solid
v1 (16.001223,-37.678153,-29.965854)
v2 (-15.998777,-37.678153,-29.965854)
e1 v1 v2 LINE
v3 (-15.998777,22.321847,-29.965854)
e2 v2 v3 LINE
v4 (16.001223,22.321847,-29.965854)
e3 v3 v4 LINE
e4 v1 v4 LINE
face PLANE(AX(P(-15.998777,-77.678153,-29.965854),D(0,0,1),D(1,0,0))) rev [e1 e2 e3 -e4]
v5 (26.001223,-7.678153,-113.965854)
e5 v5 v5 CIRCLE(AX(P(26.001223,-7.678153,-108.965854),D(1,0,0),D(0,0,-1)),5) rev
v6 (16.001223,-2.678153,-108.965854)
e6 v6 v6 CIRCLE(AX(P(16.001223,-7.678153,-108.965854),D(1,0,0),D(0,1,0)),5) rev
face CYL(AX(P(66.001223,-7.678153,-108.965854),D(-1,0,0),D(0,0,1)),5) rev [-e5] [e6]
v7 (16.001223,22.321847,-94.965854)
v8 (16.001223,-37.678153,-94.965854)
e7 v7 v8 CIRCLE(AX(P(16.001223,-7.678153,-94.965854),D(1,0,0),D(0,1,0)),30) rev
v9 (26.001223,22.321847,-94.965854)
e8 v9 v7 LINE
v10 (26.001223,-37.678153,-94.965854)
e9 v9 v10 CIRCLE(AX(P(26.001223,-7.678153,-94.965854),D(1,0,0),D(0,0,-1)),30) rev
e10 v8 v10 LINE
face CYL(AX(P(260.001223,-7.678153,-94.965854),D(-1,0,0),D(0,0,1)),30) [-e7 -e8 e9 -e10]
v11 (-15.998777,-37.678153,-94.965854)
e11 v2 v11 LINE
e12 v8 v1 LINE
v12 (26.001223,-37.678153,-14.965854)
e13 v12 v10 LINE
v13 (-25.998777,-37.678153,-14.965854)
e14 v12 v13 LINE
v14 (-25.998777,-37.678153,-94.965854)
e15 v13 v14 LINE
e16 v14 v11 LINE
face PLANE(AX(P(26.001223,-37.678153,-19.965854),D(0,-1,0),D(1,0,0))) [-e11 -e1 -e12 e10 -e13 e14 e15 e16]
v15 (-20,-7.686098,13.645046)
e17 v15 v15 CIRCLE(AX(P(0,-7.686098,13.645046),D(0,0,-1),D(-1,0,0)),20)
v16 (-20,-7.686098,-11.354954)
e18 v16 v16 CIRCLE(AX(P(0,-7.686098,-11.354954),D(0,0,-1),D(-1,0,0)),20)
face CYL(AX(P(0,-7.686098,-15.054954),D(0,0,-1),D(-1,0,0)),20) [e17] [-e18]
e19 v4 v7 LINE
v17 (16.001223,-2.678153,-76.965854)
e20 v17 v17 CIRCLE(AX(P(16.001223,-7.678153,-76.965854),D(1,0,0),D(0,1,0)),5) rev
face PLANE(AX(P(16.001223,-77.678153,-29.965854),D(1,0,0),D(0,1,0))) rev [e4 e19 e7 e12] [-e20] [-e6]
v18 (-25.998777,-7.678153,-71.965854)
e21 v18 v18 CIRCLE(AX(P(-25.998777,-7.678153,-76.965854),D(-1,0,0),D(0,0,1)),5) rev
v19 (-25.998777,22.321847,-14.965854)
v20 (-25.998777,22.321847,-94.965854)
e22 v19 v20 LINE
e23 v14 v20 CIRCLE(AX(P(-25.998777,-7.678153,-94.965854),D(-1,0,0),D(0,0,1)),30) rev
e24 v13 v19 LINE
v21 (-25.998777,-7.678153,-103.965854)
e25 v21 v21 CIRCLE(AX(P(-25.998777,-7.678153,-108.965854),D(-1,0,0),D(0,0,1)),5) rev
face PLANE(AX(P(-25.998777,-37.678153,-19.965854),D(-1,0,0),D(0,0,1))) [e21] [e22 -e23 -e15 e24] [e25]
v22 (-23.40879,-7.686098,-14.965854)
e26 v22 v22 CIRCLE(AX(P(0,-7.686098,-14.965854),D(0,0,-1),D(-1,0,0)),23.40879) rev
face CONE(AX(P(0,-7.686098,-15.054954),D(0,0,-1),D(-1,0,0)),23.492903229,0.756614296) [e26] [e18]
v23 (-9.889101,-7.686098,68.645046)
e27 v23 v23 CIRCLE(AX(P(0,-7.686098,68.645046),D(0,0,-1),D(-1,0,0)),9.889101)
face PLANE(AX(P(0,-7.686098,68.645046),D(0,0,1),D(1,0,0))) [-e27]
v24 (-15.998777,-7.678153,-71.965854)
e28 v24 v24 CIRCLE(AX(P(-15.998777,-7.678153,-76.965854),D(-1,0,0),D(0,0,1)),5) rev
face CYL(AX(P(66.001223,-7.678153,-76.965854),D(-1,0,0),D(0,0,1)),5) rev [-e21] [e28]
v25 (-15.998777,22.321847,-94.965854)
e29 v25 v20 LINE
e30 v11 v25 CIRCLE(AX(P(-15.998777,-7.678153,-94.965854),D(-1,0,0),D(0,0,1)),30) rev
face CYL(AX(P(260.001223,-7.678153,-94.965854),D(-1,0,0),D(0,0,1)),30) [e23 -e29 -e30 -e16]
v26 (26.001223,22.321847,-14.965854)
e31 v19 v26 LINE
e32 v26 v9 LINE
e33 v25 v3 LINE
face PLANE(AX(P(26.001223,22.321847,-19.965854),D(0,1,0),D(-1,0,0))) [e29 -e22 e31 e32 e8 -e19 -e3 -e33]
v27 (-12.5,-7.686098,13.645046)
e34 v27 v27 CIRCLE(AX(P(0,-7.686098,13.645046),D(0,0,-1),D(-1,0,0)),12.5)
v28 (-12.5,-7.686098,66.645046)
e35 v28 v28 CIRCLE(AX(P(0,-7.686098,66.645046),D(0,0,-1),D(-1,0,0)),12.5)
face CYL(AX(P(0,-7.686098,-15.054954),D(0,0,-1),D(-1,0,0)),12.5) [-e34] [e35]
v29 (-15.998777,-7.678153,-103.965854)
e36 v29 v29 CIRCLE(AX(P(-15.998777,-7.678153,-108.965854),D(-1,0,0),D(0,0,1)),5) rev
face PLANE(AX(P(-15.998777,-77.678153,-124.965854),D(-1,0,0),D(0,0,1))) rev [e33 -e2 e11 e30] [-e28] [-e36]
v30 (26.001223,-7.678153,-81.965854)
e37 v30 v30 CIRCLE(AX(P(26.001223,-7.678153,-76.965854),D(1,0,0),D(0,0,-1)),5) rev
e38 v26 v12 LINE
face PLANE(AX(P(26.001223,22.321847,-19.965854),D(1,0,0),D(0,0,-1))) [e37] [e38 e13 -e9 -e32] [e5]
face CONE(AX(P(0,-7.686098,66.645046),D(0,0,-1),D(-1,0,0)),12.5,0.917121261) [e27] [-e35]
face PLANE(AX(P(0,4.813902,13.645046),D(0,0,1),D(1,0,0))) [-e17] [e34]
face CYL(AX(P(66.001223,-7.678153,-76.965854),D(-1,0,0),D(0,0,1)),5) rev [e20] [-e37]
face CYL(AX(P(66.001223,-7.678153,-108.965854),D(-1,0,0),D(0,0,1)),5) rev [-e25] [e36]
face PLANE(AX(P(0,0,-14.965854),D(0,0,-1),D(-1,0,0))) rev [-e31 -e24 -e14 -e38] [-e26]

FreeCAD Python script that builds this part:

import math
import FreeCAD as App
import Part
import Sketcher

doc = App.newDocument("Part")
body = doc.addObject("PartDesign::Body", "Body")

# Sketch on YZ plane
sketch1 = doc.addObject("Sketcher::SketchObject", "Sketch")
body.addObject(sketch1)
sketch1.AttachmentSupport = (doc.YZ_Plane, [""])
sketch1.MapMode = "FlatFace"
sketch1.addGeometry([
    Part.LineSegment(App.Vector(-7.686098, 68.645046, 0), App.Vector(-7.686098, -15.054954, 0)),  # 0
    Part.LineSegment(App.Vector(-7.686098, -15.054954, 0), App.Vector(15.806806, -15.054954, 0)),  # 1
    Part.LineSegment(App.Vector(15.806806, -15.054954, 0), App.Vector(12.313902, -11.354954, 0)),  # 2
    Part.LineSegment(App.Vector(12.313902, -11.354954, 0), App.Vector(12.313902, 13.645046, 0)),  # 3
    Part.LineSegment(App.Vector(12.313902, 13.645046, 0), App.Vector(4.813902, 13.645046, 0)),  # 4
    Part.LineSegment(App.Vector(4.813902, 13.645046, 0), App.Vector(4.813902, 66.645046, 0)),  # 5
    Part.LineSegment(App.Vector(4.813902, 66.645046, 0), App.Vector(2.203003, 68.645046, 0)),  # 6
    Part.LineSegment(App.Vector(2.203003, 68.645046, 0), App.Vector(-7.686098, 68.645046, 0)),  # 7
], False)
sketch1.addGeometry(Part.LineSegment(App.Vector(-7.686098, -15.054954, 0), App.Vector(-7.686098, 68.645046, 0)), True)  # axis
sketch1.addConstraint([
    Sketcher.Constraint("Coincident", 0, 2, 1, 1),
    Sketcher.Constraint("Coincident", 1, 2, 2, 1),
    Sketcher.Constraint("Coincident", 2, 2, 3, 1),
    Sketcher.Constraint("Coincident", 3, 2, 4, 1),
    Sketcher.Constraint("Coincident", 4, 2, 5, 1),
    Sketcher.Constraint("Coincident", 5, 2, 6, 1),
    Sketcher.Constraint("Coincident", 6, 2, 7, 1),
    Sketcher.Constraint("Coincident", 7, 2, 0, 1),
    Sketcher.Constraint("Vertical", 0),
    Sketcher.Constraint("Horizontal", 1),
    Sketcher.Constraint("Vertical", 3),
    Sketcher.Constraint("Horizontal", 4),
    Sketcher.Constraint("Vertical", 5),
    Sketcher.Constraint("Horizontal", 7),
    Sketcher.Constraint("Vertical", 8),
    Sketcher.Constraint("Coincident", 8, 1, 0, 2),
    Sketcher.Constraint("Horizontal", 6, 2, 8, 2),
    Sketcher.Constraint("DistanceY", 3, 1, 3, 2, 25.0),
    Sketcher.Constraint("DistanceY", 5, 1, 5, 2, 53.0),
    Sketcher.Constraint("DistanceX", 4, 2, 4, 1, 7.5),
    Sketcher.Constraint("DistanceY", 0, 2, 0, 1, 83.7),
    Sketcher.Constraint("DistanceX", 0, 2, 2, 2, 20.0),
    Sketcher.Constraint("DistanceY", 5, 2, 6, 2, 2.0),
    Sketcher.Constraint("DistanceX", 7, 2, 7, 1, 9.889101),
    Sketcher.Constraint("Distance", 2, 5.088258),
    Sketcher.Constraint("DistanceX", 0, 2, -1, 1, 7.686098),
    Sketcher.Constraint("DistanceY", 0, 2, -1, 1, 15.054954),
])
revolution = doc.addObject("PartDesign::Revolution", "Revolution")
body.addObject(revolution)
revolution.Profile = sketch1
revolution.ReferenceAxis = (sketch1, ["Axis0"])
revolution.Angle = 360

# Sketch on XY plane
sketch2 = doc.addObject("Sketcher::SketchObject", "Sketch001")
body.addObject(sketch2)
sketch2.AttachmentSupport = (doc.XY_Plane, [""])
sketch2.MapMode = "FlatFace"
sketch2.AttachmentOffset = App.Placement(App.Vector(0, 0, -19.965854), App.Rotation())
sketch2.addGeometry([
    Part.LineSegment(App.Vector(26.001223, 22.321847, 0), App.Vector(-25.998777, 22.321847, 0)),
    Part.LineSegment(App.Vector(-25.998777, 22.321847, 0), App.Vector(-25.998777, -37.678153, 0)),
    Part.LineSegment(App.Vector(-25.998777, -37.678153, 0), App.Vector(26.001223, -37.678153, 0)),
    Part.LineSegment(App.Vector(26.001223, -37.678153, 0), App.Vector(26.001223, 22.321847, 0)),
], False)
sketch2.addConstraint([
    Sketcher.Constraint("Coincident", 0, 2, 1, 1),
    Sketcher.Constraint("Coincident", 1, 2, 2, 1),
    Sketcher.Constraint("Coincident", 2, 2, 3, 1),
    Sketcher.Constraint("Coincident", 3, 2, 0, 1),
    Sketcher.Constraint("Horizontal", 0),
    Sketcher.Constraint("Vertical", 1),
    Sketcher.Constraint("Horizontal", 2),
    Sketcher.Constraint("Vertical", 3),
    Sketcher.Constraint("DistanceX", 0, 2, 0, 1, 52.0),
    Sketcher.Constraint("DistanceY", 1, 2, 1, 1, 60.0),
    Sketcher.Constraint("DistanceX", 0, 2, -1, 1, 25.998777),
    Sketcher.Constraint("DistanceY", -1, 1, 0, 2, 22.321847),
])
pad1 = doc.addObject("PartDesign::Pad", "Pad")
body.addObject(pad1)
pad1.Profile = sketch2
pad1.Type = "TwoLengths"
pad1.Length = 5
pad1.Length2 = 105

# Sketch on XZ plane
sketch3 = doc.addObject("Sketcher::SketchObject", "Sketch002")
body.addObject(sketch3)
sketch3.AttachmentSupport = (doc.XZ_Plane, [""])
sketch3.MapMode = "FlatFace"
sketch3.AttachmentOffset = App.Placement(App.Vector(0, 0, -22.321847), App.Rotation())
sketch3.addGeometry([
    Part.LineSegment(App.Vector(-15.998777, -124.965854, 0), App.Vector(-15.998777, -29.965854, 0)),
    Part.LineSegment(App.Vector(-15.998777, -29.965854, 0), App.Vector(16.001223, -29.965854, 0)),
    Part.LineSegment(App.Vector(16.001223, -29.965854, 0), App.Vector(16.001223, -124.965854, 0)),
    Part.LineSegment(App.Vector(16.001223, -124.965854, 0), App.Vector(-15.998777, -124.965854, 0)),
], False)
sketch3.addConstraint([
    Sketcher.Constraint("Coincident", 0, 2, 1, 1),
    Sketcher.Constraint("Coincident", 1, 2, 2, 1),
    Sketcher.Constraint("Coincident", 2, 2, 3, 1),
    Sketcher.Constraint("Coincident", 3, 2, 0, 1),
    Sketcher.Constraint("Vertical", 0),
    Sketcher.Constraint("Horizontal", 1),
    Sketcher.Constraint("Vertical", 2),
    Sketcher.Constraint("Horizontal", 3),
    Sketcher.Constraint("DistanceX", 1, 1, 1, 2, 32.0),
    Sketcher.Constraint("DistanceY", 0, 1, 0, 2, 95.0),
    Sketcher.Constraint("DistanceX", 0, 2, -1, 1, 15.998777),
    Sketcher.Constraint("DistanceY", 0, 2, -1, 1, 29.965854),
])
pocket1 = doc.addObject("PartDesign::Pocket", "Pocket")
body.addObject(pocket1)
pocket1.Profile = sketch3
pocket1.Length = 100
pocket1.Reversed = True

# Sketch on YZ plane
sketch4 = doc.addObject("Sketcher::SketchObject", "Sketch003")
body.addObject(sketch4)
sketch4.AttachmentSupport = (doc.YZ_Plane, [""])
sketch4.MapMode = "FlatFace"
sketch4.AttachmentOffset = App.Placement(App.Vector(0, 0, 26.001223), App.Rotation())
sketch4.addGeometry([
    Part.Circle(App.Vector(-7.678153, -76.965854, 0), App.Vector(0, 0, 1), 5),
    Part.Circle(App.Vector(-7.678153, -108.965854, 0), App.Vector(0, 0, 1), 5),
], False)
sketch4.addConstraint([
    Sketcher.Constraint("Equal", 0, 1),
    Sketcher.Constraint("Vertical", 0, 3, 1, 3),
    Sketcher.Constraint("Diameter", 0, 10.0),
    Sketcher.Constraint("DistanceY", 1, 3, 0, 3, 32.0),
    Sketcher.Constraint("DistanceX", 0, 3, -1, 1, 7.678153),
    Sketcher.Constraint("DistanceY", 0, 3, -1, 1, 76.965854),
])
pocket2 = doc.addObject("PartDesign::Pocket", "Pocket001")
body.addObject(pocket2)
pocket2.Profile = sketch4
pocket2.Type = "ThroughAll"
pocket2.Midplane = True

# Sketch on YZ plane
sketch5 = doc.addObject("Sketcher::SketchObject", "Sketch004")
body.addObject(sketch5)
sketch5.AttachmentSupport = (doc.YZ_Plane, [""])
sketch5.MapMode = "FlatFace"
sketch5.AttachmentOffset = App.Placement(App.Vector(0, 0, 26.001223), App.Rotation())
sketch5.addGeometry([
    Part.LineSegment(App.Vector(-7.678152, -124.965854, 0), App.Vector(22.321847, -124.965854, 0)),  # 0
    Part.LineSegment(App.Vector(22.321847, -124.965854, 0), App.Vector(22.321847, -94.965854, 0)),  # 1
    Part.ArcOfCircle(Part.Circle(App.Vector(-7.678153, -94.965854, 0), App.Vector(0, 0, 1), 30), math.radians(-90), math.radians(0)),  # 2
    Part.LineSegment(App.Vector(-37.678153, -124.965854, 0), App.Vector(-7.678152, -124.965854, 0)),  # 3
    Part.ArcOfCircle(Part.Circle(App.Vector(-7.678153, -94.965854, 0), App.Vector(0, 0, 1), 30), math.radians(180), math.radians(270)),  # 4
    Part.LineSegment(App.Vector(-37.678153, -94.965854, 0), App.Vector(-37.678153, -124.965854, 0)),  # 5
], False)
sketch5.addConstraint([
    Sketcher.Constraint("Coincident", 0, 2, 1, 1),
    Sketcher.Constraint("Tangent", 1, 2, 2, 2),
    Sketcher.Constraint("Tangent", 2, 1, 0, 1),
    Sketcher.Constraint("Tangent", 3, 2, 4, 2),
    Sketcher.Constraint("Tangent", 4, 1, 5, 1),
    Sketcher.Constraint("Coincident", 5, 2, 3, 1),
    Sketcher.Constraint("Horizontal", 0),
    Sketcher.Constraint("Vertical", 1),
    Sketcher.Constraint("Horizontal", 3),
    Sketcher.Constraint("Vertical", 5),
    Sketcher.Constraint("Coincident", 4, 3, 2, 3),
    Sketcher.Constraint("Equal", 2, 4),
    Sketcher.Constraint("Radius", 2, 30.0),
    Sketcher.Constraint("DistanceX", 2, 3, -1, 1, 7.678153),
    Sketcher.Constraint("DistanceY", 2, 3, -1, 1, 94.965854),
])
pocket3 = doc.addObject("PartDesign::Pocket", "Pocket002")
body.addObject(pocket3)
pocket3.Profile = sketch5
pocket3.Type = "ThroughAll"
pocket3.Midplane = True

doc.recompute()
